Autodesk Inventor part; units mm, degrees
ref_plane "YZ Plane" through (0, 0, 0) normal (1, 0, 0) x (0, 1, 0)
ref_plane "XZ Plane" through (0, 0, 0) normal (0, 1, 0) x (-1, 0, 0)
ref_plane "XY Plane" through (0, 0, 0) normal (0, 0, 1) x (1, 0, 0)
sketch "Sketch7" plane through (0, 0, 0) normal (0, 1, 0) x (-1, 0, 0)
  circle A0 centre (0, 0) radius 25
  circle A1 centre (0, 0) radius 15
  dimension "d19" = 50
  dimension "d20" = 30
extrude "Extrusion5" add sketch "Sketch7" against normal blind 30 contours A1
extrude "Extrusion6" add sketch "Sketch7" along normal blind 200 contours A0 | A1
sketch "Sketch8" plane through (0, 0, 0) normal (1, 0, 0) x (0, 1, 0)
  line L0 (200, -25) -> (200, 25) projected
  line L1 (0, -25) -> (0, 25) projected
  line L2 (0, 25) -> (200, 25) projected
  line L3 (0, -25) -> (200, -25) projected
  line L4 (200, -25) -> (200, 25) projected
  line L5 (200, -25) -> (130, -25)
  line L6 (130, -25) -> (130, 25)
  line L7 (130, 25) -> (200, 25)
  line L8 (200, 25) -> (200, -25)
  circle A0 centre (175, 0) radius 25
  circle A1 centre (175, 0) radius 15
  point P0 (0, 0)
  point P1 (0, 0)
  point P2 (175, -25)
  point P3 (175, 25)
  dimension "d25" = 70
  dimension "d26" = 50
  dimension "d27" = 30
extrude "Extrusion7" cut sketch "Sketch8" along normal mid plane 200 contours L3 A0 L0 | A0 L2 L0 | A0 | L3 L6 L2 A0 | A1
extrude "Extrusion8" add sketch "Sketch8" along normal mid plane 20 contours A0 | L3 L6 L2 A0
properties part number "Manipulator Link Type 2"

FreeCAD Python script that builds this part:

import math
import FreeCAD as App
import Part
import Sketcher

doc = App.newDocument("Part")
params = doc.addObject("Spreadsheet::Sheet", "Params")
for row, (alias, value) in enumerate([
    ("sketch1_diameter", "30 mm"),
    ("pad1_length", "30 mm"),
    ("sketch2_diameter", "50 mm"),
    ("pad2_length", "200 mm"),
    ("sketch3_width", "70 mm"),
    ("sketch3_height", "50 mm"),
    ("pocket1_length", "200 mm"),
    ("sketch4_diameter", "30 mm"),
    ("sketch4_radius", "25 mm"),
    ("sketch4_width", "45 mm"),
    ("pad3_length", "20 mm"),
], start=1):
    params.set(f"A{row}", alias)
    params.set(f"B{row}", "=" + value)
    params.setAlias(f"B{row}", alias)

body = doc.addObject("PartDesign::Body", "Body")

sketch1 = body.newObject("Sketcher::SketchObject", "Sketch")
sketch1.AttachmentSupport = (doc.getObject("XZ_Plane"), [""])
sketch1.MapMode = "FlatFace"
sketch1.addGeometry(Part.Circle(App.Vector(0, 0, 0), App.Vector(0, 0, 1), 15), False)
sketch1.addConstraint([
    Sketcher.Constraint("Coincident", 0, 3, -1, 1),
    Sketcher.Constraint("Diameter", 0, 30.0),
])
sketch1.setExpression("Constraints[1]", "Params.sketch1_diameter")
pad1 = body.newObject("PartDesign::Pad", "Pad")
pad1.Profile = sketch1
pad1.setExpression("Length", "Params.pad1_length")

sketch2 = body.newObject("Sketcher::SketchObject", "Sketch001")
sketch2.AttachmentSupport = (doc.getObject("XZ_Plane"), [""])
sketch2.MapMode = "FlatFace"
sketch2.addGeometry(Part.Circle(App.Vector(0, 0, 0), App.Vector(0, 0, 1), 25), False)
sketch2.addConstraint([
    Sketcher.Constraint("Coincident", 0, 3, -1, 1),
    Sketcher.Constraint("Diameter", 0, 50.0),
])
sketch2.setExpression("Constraints[1]", "Params.sketch2_diameter")
pad2 = body.newObject("PartDesign::Pad", "Pad001")
pad2.Profile = sketch2
pad2.setExpression("Length", "Params.pad2_length")
pad2.Reversed = True

sketch3 = body.newObject("Sketcher::SketchObject", "Sketch002")
sketch3.AttachmentSupport = (doc.getObject("YZ_Plane"), [""])
sketch3.MapMode = "FlatFace"
sketch3.addGeometry([
    Part.LineSegment(App.Vector(200, -25, 0), App.Vector(200, 25, 0)),
    Part.LineSegment(App.Vector(200, 25, 0), App.Vector(130, 25, 0)),
    Part.LineSegment(App.Vector(130, 25, 0), App.Vector(130, -25, 0)),
    Part.LineSegment(App.Vector(130, -25, 0), App.Vector(200, -25, 0)),
], False)
sketch3.addConstraint([
    Sketcher.Constraint("Coincident", 0, 2, 1, 1),
    Sketcher.Constraint("Coincident", 1, 2, 2, 1),
    Sketcher.Constraint("Coincident", 2, 2, 3, 1),
    Sketcher.Constraint("Coincident", 3, 2, 0, 1),
    Sketcher.Constraint("Vertical", 0),
    Sketcher.Constraint("Horizontal", 1),
    Sketcher.Constraint("Vertical", 2),
    Sketcher.Constraint("Horizontal", 3),
    Sketcher.Constraint("DistanceX", 1, 2, 1, 1, 70.0),
    Sketcher.Constraint("DistanceY", 0, 1, 0, 2, 50.0),
    Sketcher.Constraint("DistanceX", -1, 1, 0, 2, 200.0),
    Sketcher.Constraint("DistanceY", -1, 1, 0, 2, 25.0),
])
sketch3.setExpression("Constraints[8]", "Params.sketch3_width")
sketch3.setExpression("Constraints[9]", "Params.sketch3_height")
pocket1 = body.newObject("PartDesign::Pocket", "Pocket")
pocket1.Profile = sketch3
pocket1.setExpression("Length", "Params.pocket1_length")
pocket1.Midplane = True

sketch4 = body.newObject("Sketcher::SketchObject", "Sketch003")
sketch4.AttachmentSupport = (doc.getObject("YZ_Plane"), [""])
sketch4.MapMode = "FlatFace"
sketch4.addGeometry([
    Part.ArcOfCircle(Part.Circle(App.Vector(175, 0, 0), App.Vector(0, 0, 1), 25), math.radians(-90), math.radians(90)),
    Part.LineSegment(App.Vector(175, 25, 0), App.Vector(130, 25, 0)),
    Part.LineSegment(App.Vector(130, 25, 0), App.Vector(130, -25, 0)),
    Part.LineSegment(App.Vector(130, -25, 0), App.Vector(175, -25, 0)),
    Part.Circle(App.Vector(175, 0, 0), App.Vector(0, 0, 1), 15),
], False)
sketch4.addConstraint([
    Sketcher.Constraint("Tangent", 0, 2, 1, 1),
    Sketcher.Constraint("Coincident", 1, 2, 2, 1),
    Sketcher.Constraint("Coincident", 2, 2, 3, 1),
    Sketcher.Constraint("Tangent", 3, 2, 0, 1),
    Sketcher.Constraint("Horizontal", 1),
    Sketcher.Constraint("Vertical", 2),
    Sketcher.Constraint("Horizontal", 3),
    Sketcher.Constraint("Coincident", 4, 3, 0, 3),
    Sketcher.Constraint("PointOnObject", 0, 3, -1),
    Sketcher.Constraint("Diameter", 4, 30.0),
    Sketcher.Constraint("Radius", 0, 25.0),
    Sketcher.Constraint("DistanceX", 1, 2, 1, 1, 45.0),
    Sketcher.Constraint("DistanceX", -1, 1, 0, 3, 175.0),
])
sketch4.setExpression("Constraints[9]", "Params.sketch4_diameter")
sketch4.setExpression("Constraints[10]", "Params.sketch4_radius")
sketch4.setExpression("Constraints[11]", "Params.sketch4_width")
pad3 = body.newObject("PartDesign::Pad", "Pad002")
pad3.Profile = sketch4
pad3.setExpression("Length", "Params.pad3_length")
pad3.Midplane = True

doc.recompute()
